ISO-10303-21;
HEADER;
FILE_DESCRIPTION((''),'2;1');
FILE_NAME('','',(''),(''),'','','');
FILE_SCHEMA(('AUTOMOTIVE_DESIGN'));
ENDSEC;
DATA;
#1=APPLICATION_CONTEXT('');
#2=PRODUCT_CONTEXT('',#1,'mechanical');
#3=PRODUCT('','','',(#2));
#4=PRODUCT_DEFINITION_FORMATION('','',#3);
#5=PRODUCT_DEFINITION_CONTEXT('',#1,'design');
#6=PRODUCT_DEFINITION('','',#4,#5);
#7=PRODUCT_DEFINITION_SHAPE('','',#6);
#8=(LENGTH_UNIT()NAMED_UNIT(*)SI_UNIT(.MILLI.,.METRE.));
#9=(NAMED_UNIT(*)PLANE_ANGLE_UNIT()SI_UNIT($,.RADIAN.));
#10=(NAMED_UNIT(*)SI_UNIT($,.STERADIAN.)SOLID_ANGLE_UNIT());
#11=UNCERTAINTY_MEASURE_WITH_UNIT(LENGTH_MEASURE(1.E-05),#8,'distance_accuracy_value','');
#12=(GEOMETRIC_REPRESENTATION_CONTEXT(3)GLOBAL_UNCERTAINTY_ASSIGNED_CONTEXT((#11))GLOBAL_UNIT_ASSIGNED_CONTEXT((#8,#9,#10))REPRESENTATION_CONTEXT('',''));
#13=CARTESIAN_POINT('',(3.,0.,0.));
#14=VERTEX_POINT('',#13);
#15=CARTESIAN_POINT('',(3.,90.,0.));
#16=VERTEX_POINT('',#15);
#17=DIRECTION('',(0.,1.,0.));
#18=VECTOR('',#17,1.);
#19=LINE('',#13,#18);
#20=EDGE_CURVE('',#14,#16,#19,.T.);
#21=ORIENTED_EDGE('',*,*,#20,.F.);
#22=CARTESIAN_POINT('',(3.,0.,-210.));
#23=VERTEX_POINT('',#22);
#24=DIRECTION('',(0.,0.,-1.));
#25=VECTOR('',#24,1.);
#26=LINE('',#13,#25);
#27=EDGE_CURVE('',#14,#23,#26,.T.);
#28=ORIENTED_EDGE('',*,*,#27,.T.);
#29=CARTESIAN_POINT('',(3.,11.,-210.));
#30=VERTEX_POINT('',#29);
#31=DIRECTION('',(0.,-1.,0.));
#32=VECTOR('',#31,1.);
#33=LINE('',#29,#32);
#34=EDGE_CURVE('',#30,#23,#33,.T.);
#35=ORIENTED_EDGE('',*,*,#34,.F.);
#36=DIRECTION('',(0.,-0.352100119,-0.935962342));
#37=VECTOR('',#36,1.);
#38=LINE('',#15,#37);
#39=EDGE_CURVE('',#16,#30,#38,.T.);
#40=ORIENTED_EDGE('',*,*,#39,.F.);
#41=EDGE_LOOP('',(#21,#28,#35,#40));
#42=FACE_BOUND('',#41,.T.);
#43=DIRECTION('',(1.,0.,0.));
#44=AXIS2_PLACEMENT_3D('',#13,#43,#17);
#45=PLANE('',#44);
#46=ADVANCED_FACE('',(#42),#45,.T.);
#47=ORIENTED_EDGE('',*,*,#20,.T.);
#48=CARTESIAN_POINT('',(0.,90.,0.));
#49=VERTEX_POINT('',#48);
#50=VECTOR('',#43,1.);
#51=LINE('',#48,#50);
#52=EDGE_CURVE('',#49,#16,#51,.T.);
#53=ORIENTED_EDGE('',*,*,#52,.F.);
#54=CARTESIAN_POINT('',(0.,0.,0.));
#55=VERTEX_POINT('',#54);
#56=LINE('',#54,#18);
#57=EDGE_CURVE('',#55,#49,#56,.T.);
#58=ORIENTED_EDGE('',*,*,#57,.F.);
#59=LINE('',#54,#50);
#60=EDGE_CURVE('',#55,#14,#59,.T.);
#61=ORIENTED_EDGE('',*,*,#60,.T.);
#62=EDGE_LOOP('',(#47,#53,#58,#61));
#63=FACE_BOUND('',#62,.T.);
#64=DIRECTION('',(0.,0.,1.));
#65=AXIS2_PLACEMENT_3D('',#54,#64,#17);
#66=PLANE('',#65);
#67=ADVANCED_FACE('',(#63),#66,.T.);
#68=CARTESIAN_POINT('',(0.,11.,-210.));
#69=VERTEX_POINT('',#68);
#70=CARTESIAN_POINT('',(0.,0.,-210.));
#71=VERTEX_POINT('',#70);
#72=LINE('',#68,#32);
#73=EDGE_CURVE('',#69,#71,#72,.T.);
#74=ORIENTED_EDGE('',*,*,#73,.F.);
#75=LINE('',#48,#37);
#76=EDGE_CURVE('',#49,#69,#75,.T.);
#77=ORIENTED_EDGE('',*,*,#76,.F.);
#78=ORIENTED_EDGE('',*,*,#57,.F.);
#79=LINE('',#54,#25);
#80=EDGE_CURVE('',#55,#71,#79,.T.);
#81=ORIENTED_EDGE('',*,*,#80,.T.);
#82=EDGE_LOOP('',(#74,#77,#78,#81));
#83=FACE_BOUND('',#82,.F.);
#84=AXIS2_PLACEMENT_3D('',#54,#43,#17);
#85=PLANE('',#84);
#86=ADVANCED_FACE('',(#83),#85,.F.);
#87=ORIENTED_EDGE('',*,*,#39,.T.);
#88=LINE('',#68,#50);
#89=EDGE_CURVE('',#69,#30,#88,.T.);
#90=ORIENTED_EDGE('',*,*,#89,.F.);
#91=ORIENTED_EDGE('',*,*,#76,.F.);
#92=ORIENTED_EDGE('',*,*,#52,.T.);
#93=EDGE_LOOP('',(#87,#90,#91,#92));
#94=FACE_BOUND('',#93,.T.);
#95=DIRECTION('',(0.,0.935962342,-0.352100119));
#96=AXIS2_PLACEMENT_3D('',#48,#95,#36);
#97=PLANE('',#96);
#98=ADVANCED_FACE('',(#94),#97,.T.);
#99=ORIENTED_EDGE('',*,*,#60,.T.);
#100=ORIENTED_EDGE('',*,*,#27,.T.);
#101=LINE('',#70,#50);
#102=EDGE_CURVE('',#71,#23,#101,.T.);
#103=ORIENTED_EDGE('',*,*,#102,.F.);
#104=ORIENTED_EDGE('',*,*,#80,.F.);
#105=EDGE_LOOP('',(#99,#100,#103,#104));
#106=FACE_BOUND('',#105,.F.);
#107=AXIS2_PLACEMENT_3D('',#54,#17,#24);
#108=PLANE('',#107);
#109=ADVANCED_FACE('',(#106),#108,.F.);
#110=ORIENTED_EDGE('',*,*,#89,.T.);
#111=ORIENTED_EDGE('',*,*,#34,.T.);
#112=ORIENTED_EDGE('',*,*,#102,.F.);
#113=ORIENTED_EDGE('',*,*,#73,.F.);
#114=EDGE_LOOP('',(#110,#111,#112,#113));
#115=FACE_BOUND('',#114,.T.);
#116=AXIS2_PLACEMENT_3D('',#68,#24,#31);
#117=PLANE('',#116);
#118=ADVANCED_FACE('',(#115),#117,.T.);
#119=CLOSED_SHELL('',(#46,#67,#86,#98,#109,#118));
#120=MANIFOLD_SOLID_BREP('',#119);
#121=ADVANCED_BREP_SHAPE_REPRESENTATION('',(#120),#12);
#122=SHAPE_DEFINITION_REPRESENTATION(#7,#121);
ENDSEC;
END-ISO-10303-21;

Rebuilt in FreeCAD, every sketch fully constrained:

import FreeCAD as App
import Part
import Sketcher

V = App.Vector


def add_polygon(sketch, points):
    """Adds a closed chain of lines whose ends are joined by coincident constraints."""
    first, n = sketch.GeometryCount, len(points)
    for a, b in zip(points, points[1:] + points[:1]):
        sketch.addGeometry(Part.LineSegment(App.Vector(*a, 0), App.Vector(*b, 0)), False)
    for i in range(n):
        sketch.addConstraint(Sketcher.Constraint("Coincident", first + i, 2, first + (i + 1) % n, 1))

doc = App.newDocument("Part")
params = doc.addObject("Spreadsheet::Sheet", "Params")
for row, (alias, value) in enumerate([
    ("sketch1_width", "90 mm"),
    ("sketch1_width2", "11 mm"),
    ("sketch1_height", "210 mm"),
    ("pad1_length", "3 mm"),
], start=1):
    params.set(f"A{row}", alias)
    params.set(f"B{row}", "=" + value)
    params.setAlias(f"B{row}", alias)

body = doc.addObject("PartDesign::Body", "Body")

# Sketch on YZ plane
sketch1 = body.newObject("Sketcher::SketchObject", "Sketch")
sketch1.AttachmentSupport = (doc.getObject("YZ_Plane"), [""])
sketch1.MapMode = "FlatFace"
add_polygon(sketch1, [(90, 0), (0, 0), (0, -210), (11, -210)])  # lines 0-3
sketch1.addConstraint(Sketcher.Constraint("Horizontal", 0))
sketch1.addConstraint(Sketcher.Constraint("Vertical", 1))
sketch1.addConstraint(Sketcher.Constraint("Horizontal", 2))
sketch1.addConstraint(Sketcher.Constraint("Coincident", 0, 2, -1, 1))
sketch1.addConstraint(Sketcher.Constraint("DistanceX", 0, 2, 0, 1, 90.0))
sketch1.addConstraint(Sketcher.Constraint("DistanceX", 2, 1, 2, 2, 11.0))
sketch1.addConstraint(Sketcher.Constraint("DistanceY", 1, 2, 1, 1, 210.0))
sketch1.setExpression("Constraints[8]", "Params.sketch1_width")
sketch1.setExpression("Constraints[9]", "Params.sketch1_width2")
sketch1.setExpression("Constraints[10]", "Params.sketch1_height")
pad1 = body.newObject("PartDesign::Pad", "Pad")
pad1.Profile = sketch1
pad1.setExpression("Length", "Params.pad1_length")

doc.recompute()
